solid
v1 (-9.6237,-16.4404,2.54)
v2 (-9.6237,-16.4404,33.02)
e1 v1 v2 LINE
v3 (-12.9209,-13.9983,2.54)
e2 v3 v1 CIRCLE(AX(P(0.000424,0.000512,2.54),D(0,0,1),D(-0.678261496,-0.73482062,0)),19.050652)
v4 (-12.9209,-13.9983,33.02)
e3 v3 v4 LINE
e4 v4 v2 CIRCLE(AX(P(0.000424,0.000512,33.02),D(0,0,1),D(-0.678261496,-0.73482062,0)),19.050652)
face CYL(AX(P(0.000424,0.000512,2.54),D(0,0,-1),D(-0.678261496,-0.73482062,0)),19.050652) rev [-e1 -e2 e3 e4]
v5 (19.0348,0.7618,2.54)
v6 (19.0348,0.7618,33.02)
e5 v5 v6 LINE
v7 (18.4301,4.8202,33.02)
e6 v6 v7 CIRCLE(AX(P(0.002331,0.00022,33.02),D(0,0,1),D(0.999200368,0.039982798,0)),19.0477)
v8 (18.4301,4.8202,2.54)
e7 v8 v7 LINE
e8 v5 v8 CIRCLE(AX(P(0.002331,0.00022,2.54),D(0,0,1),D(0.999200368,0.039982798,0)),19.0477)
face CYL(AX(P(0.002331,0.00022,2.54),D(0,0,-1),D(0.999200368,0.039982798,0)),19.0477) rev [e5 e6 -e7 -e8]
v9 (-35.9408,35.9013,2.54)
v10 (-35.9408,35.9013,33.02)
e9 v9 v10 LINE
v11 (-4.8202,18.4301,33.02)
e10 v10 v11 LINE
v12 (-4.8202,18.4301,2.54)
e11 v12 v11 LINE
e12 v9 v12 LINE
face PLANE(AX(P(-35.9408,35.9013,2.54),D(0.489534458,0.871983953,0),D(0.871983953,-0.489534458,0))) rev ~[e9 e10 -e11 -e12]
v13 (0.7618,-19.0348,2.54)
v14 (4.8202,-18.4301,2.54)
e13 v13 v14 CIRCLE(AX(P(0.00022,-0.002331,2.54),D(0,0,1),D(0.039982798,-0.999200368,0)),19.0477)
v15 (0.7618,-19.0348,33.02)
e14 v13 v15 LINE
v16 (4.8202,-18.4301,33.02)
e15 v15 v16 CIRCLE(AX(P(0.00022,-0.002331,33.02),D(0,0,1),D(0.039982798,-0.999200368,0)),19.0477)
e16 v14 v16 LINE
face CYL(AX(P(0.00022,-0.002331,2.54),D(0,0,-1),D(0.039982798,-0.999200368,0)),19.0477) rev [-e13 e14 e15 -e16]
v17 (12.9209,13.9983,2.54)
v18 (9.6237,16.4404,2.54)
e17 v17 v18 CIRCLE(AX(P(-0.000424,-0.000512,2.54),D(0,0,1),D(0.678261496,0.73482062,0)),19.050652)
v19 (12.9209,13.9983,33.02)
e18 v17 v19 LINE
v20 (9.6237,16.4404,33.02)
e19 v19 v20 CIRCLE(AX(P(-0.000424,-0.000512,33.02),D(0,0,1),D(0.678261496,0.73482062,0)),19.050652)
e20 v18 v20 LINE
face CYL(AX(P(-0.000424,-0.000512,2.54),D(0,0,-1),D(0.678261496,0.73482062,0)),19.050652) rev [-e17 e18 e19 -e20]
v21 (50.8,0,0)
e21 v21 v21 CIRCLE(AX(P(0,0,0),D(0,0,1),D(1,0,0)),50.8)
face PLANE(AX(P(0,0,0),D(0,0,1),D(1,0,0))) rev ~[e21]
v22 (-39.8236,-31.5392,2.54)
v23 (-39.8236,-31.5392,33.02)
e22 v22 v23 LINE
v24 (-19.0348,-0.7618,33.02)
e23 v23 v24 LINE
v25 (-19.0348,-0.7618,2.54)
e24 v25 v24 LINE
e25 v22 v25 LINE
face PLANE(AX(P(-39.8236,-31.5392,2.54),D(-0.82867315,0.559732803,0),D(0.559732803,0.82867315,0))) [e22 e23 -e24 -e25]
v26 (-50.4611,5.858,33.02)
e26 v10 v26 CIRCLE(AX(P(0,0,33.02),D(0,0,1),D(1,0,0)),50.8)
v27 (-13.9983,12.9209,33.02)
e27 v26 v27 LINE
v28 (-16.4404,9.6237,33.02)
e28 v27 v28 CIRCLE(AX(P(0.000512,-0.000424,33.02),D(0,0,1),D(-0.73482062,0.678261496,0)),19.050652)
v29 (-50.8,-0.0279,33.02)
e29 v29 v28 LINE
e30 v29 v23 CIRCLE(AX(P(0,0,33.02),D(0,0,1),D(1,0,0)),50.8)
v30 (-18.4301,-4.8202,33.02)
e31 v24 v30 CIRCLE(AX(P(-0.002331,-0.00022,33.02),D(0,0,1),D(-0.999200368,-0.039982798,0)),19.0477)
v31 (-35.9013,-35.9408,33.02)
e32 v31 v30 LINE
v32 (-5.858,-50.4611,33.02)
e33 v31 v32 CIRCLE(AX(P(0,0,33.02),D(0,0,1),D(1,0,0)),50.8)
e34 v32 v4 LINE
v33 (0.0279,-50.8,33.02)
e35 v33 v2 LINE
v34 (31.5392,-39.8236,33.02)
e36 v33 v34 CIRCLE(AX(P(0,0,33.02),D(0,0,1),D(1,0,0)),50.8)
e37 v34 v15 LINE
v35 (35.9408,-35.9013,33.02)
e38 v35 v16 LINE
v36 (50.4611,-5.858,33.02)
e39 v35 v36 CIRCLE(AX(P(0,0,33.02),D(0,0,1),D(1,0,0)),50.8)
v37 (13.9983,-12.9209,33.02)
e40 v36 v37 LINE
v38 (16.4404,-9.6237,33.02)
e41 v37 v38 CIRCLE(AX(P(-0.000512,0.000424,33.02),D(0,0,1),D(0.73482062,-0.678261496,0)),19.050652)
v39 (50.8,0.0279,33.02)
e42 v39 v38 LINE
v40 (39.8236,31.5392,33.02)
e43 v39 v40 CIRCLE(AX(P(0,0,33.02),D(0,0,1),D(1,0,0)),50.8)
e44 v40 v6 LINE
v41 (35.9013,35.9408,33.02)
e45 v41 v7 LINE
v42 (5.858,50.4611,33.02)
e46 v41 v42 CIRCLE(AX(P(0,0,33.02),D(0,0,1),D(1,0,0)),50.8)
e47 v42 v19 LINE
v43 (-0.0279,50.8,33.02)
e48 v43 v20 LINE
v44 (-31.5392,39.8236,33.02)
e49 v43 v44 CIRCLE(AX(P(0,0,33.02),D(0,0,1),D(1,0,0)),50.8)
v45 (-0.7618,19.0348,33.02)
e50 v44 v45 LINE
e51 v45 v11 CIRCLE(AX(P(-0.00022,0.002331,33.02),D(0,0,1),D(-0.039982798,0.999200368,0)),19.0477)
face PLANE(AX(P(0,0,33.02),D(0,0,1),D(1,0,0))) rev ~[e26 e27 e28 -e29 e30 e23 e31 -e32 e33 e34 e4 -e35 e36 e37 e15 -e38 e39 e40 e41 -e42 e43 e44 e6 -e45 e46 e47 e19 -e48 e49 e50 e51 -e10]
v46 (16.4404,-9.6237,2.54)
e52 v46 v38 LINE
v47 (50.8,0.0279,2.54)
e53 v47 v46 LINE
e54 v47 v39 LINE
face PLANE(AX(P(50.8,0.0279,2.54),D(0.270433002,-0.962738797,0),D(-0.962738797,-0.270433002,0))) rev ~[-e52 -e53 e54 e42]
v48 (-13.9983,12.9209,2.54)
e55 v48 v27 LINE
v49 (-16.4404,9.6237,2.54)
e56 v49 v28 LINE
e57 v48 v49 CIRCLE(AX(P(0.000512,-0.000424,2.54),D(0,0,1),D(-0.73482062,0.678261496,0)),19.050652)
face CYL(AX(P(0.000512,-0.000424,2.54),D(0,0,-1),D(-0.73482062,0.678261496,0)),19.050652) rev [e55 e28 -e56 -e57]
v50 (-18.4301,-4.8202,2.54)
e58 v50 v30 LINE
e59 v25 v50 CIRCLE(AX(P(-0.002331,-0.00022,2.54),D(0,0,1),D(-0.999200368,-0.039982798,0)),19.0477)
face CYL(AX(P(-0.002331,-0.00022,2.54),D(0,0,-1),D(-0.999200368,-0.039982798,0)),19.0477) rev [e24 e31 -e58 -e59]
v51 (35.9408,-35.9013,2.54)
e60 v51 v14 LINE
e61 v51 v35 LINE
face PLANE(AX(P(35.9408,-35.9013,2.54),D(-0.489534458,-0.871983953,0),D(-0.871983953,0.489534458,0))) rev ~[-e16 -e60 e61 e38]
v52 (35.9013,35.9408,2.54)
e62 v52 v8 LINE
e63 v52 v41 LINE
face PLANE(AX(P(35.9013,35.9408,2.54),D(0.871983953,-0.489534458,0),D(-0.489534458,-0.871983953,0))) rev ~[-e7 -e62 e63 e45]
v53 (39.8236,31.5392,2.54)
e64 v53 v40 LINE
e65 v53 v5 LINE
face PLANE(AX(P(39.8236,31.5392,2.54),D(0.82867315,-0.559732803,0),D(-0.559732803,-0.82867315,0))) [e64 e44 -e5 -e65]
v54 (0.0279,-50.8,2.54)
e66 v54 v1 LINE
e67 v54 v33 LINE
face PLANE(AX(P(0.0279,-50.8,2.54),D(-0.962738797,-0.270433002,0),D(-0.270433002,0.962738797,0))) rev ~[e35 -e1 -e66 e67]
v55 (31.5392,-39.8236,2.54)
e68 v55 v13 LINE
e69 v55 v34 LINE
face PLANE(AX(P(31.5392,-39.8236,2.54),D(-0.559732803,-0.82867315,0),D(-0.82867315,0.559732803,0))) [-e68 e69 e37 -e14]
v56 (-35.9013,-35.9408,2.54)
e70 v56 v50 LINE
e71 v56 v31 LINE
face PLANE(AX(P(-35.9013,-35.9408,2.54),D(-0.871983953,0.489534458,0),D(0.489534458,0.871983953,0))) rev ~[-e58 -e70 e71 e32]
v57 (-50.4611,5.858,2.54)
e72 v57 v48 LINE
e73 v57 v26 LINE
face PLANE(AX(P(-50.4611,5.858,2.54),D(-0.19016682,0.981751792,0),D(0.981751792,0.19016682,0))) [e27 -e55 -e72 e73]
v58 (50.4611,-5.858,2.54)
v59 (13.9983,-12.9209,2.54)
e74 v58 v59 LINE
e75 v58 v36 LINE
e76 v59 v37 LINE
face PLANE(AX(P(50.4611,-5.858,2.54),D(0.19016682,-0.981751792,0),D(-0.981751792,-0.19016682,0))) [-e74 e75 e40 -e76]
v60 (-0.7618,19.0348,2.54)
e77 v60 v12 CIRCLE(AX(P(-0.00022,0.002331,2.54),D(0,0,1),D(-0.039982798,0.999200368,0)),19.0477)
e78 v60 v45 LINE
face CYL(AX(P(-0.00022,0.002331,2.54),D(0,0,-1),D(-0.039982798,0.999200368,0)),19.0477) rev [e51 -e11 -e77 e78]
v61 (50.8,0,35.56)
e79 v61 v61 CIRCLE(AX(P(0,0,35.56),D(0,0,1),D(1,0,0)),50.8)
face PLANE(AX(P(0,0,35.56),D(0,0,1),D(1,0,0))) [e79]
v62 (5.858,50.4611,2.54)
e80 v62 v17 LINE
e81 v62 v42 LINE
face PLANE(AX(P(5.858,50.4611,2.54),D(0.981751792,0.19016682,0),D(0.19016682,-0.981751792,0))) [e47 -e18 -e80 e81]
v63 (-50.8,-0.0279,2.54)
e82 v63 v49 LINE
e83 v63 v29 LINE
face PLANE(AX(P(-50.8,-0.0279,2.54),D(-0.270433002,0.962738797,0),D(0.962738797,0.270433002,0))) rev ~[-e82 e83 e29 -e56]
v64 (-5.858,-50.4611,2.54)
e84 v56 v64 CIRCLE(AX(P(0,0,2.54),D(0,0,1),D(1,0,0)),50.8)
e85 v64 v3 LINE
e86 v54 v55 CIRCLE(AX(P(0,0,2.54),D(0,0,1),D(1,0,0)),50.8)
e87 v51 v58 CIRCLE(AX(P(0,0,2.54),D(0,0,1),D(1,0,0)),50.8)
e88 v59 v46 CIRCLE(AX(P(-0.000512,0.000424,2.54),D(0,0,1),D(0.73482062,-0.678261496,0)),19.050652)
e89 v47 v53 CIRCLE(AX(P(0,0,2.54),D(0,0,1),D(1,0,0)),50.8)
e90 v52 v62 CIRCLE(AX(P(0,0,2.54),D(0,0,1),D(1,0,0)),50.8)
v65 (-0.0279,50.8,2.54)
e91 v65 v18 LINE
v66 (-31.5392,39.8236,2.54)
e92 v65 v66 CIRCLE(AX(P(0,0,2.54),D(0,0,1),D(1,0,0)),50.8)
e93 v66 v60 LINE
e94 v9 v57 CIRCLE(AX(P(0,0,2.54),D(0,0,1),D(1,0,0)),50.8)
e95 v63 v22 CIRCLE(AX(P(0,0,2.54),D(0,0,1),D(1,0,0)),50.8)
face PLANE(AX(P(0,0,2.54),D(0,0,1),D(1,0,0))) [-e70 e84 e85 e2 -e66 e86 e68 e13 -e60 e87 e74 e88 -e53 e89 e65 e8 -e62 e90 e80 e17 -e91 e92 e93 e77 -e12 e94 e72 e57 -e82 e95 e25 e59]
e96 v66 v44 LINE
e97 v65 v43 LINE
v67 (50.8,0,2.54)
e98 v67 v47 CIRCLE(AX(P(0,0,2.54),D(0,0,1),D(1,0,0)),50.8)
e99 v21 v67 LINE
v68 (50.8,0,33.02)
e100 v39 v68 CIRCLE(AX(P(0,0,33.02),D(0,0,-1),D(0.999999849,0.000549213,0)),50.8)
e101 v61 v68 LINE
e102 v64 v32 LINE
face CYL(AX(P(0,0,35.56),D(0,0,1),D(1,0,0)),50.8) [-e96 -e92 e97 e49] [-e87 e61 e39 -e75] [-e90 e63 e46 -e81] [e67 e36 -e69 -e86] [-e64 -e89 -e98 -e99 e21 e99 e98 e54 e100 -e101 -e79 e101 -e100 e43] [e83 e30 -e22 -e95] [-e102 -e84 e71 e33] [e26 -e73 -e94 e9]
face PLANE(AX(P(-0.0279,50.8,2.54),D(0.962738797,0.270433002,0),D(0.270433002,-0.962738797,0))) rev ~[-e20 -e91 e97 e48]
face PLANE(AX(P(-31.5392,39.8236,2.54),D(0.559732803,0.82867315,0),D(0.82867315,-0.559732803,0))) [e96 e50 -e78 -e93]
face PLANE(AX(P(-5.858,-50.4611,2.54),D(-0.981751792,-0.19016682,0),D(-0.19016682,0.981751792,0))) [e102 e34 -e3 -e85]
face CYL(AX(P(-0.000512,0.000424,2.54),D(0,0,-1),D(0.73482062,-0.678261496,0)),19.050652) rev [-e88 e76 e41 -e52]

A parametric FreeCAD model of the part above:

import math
import FreeCAD as App
import Part
import Sketcher

V = App.Vector
Q = App.Units.Quantity

doc = App.newDocument("Part")
body = doc.addObject("PartDesign::Body", "Body")

sketch1 = doc.addObject("Sketcher::SketchObject", "Sketch")
body.addObject(sketch1)
sketch1.AttachmentSupport = (doc.XY_Plane, [""])
sketch1.MapMode = "FlatFace"
sketch1.addGeometry(Part.Circle(V(0, 0, 0), V(0, 0, 1), 51), False)
sketch1.addConstraint(Sketcher.Constraint("Coincident", 0, 3, -1, 1))
sketch1.addConstraint(Sketcher.Constraint("Diameter", 0, Q("4 in")))
pad1 = doc.addObject("PartDesign::Pad", "Pad")
body.addObject(pad1)
pad1.Profile = sketch1
pad1.Length = Q("0.1 in")

sketch2 = doc.addObject("Sketcher::SketchObject", "Sketch001")
body.addObject(sketch2)
sketch2.AttachmentSupport = (doc.XY_Plane, [""])
sketch2.MapMode = "FlatFace"
sketch2.AttachmentOffset = App.Placement(V(0, 0, 0.1 * 25.4), App.Rotation())
sketch2.addGeometry(Part.ArcOfCircle(Part.Circle(V(0, 0, 0), V(0, 0, 1), 50.8), math.radians(-6.621793), math.radians(0.031468)), False)
sketch2.addGeometry(Part.LineSegment(V(50.8, 0.0279, 0), V(16.4404, -9.6237, 0)), False)
sketch2.addGeometry(Part.ArcOfCircle(Part.Circle(V(0, 0, 0), V(0, 0, 1), 19.050038), math.radians(-42.708047), math.radians(-30.343382)), False)
sketch2.addGeometry(Part.LineSegment(V(13.9983, -12.9209, 0), V(50.4611, -5.858, 0)), False)
sketch2.addGeometry(Part.LineSegment(V(19.0348, 0.7618, 0), V(39.8236, 31.5392, 0)), False)
sketch2.addGeometry(Part.ArcOfCircle(Part.Circle(V(0, 0, 0), V(0, 0, 1), 50.8), math.radians(38.378259), math.radians(45.031502)), False)
sketch2.addGeometry(Part.LineSegment(V(35.9013, 35.9408, 0), V(18.4301, 4.8202, 0)), False)
sketch2.addGeometry(Part.ArcOfCircle(Part.Circle(V(0.002331, 0.00022, 0), V(0, 0, 1), 19.0477), math.radians(2.291456), math.radians(14.657944)), False)
sketch2.addGeometry(Part.ArcOfCircle(Part.Circle(V(0, 0, 0), V(0, 0, 1), 50.8), math.radians(-51.621741), math.radians(-44.968498)), False)
sketch2.addGeometry(Part.LineSegment(V(35.9408, -35.9013, 0), V(4.8202, -18.4301, 0)), False)
sketch2.addGeometry(Part.ArcOfCircle(Part.Circle(V(0.00022, -0.002331, 0), V(0, 0, 1), 19.0477), math.radians(-87.708544), math.radians(-75.342056)), False)
sketch2.addGeometry(Part.LineSegment(V(0.7618, -19.0348, 0), V(31.5392, -39.8236, 0)), False)
sketch2.addGeometry(Part.LineSegment(V(12.9209, 13.9983, 0), V(5.858, 50.4611, 0)), False)
sketch2.addGeometry(Part.ArcOfCircle(Part.Circle(V(0, 0, 0), V(0, 0, 1), 50.8), math.radians(83.378207), math.radians(90.031468)), False)
sketch2.addGeometry(Part.LineSegment(V(-0.0279, 50.8, 0), V(9.6237, 16.4404, 0)), False)
sketch2.addGeometry(Part.ArcOfCircle(Part.Circle(V(0, 0, 0), V(0, 0, 1), 19.050038), math.radians(47.291953), math.radians(59.656618)), False)
sketch2.addGeometry(Part.ArcOfCircle(Part.Circle(V(0, 0, 0), V(0, 0, 1), 50.8), math.radians(-96.621793), math.radians(-89.968532)), False)
sketch2.addGeometry(Part.LineSegment(V(0.0279, -50.8, 0), V(-9.6237, -16.4404, 0)), False)
sketch2.addGeometry(Part.ArcOfCircle(Part.Circle(V(0, 0, 0), V(0, 0, 1), 19.050038), math.radians(-132.708047), math.radians(-120.343382)), False)
sketch2.addGeometry(Part.LineSegment(V(-12.9209, -13.9983, 0), V(-5.858, -50.4611, 0)), False)
sketch2.addGeometry(Part.LineSegment(V(-0.7618, 19.0348, 0), V(-31.5392, 39.8236, 0)), False)
sketch2.addGeometry(Part.ArcOfCircle(Part.Circle(V(0, 0, 0), V(0, 0, 1), 50.8), math.radians(128.378259), math.radians(135.031502)), False)
sketch2.addGeometry(Part.LineSegment(V(-35.9408, 35.9013, 0), V(-4.8202, 18.4301, 0)), False)
sketch2.addGeometry(Part.ArcOfCircle(Part.Circle(V(-0.00022, 0.002331, 0), V(0, 0, 1), 19.0477), math.radians(92.291456), math.radians(104.657944)), False)
sketch2.addGeometry(Part.ArcOfCircle(Part.Circle(V(0, 0, 0), V(0, 0, 1), 50.8), math.radians(-141.621741), math.radians(-134.968498)), False)
sketch2.addGeometry(Part.LineSegment(V(-35.9013, -35.9408, 0), V(-18.4301, -4.8202, 0)), False)
sketch2.addGeometry(Part.ArcOfCircle(Part.Circle(V(-0.002331, -0.00022, 0), V(0, 0, 1), 19.0477), math.radians(-177.708544), math.radians(-165.342056)), False)
sketch2.addGeometry(Part.LineSegment(V(-19.0348, -0.7618, 0), V(-39.8236, -31.5392, 0)), False)
sketch2.addGeometry(Part.LineSegment(V(-13.9983, 12.9209, 0), V(-50.4611, 5.858, 0)), False)
sketch2.addGeometry(Part.ArcOfCircle(Part.Circle(V(0, 0, 0), V(0, 0, 1), 50.8), math.radians(173.378207), math.radians(180.031468)), False)
sketch2.addGeometry(Part.LineSegment(V(-50.8, -0.0279, 0), V(-16.4404, 9.6237, 0)), False)
sketch2.addGeometry(Part.ArcOfCircle(Part.Circle(V(0, 0, 0), V(0, 0, 1), 19.050038), math.radians(137.291953), math.radians(149.656618)), False)
sketch2.addConstraint(Sketcher.Constraint("Coincident", 0, 2, 1, 1))
sketch2.addConstraint(Sketcher.Constraint("Coincident", 1, 2, 2, 2))
sketch2.addConstraint(Sketcher.Constraint("Coincident", 2, 1, 3, 1))
sketch2.addConstraint(Sketcher.Constraint("Coincident", 3, 2, 0, 1))
sketch2.addConstraint(Sketcher.Constraint("Coincident", 4, 2, 5, 1))
sketch2.addConstraint(Sketcher.Constraint("Coincident", 5, 2, 6, 1))
sketch2.addConstraint(Sketcher.Constraint("Coincident", 6, 2, 7, 2))
sketch2.addConstraint(Sketcher.Constraint("Coincident", 7, 1, 4, 1))
sketch2.addConstraint(Sketcher.Constraint("Coincident", 8, 2, 9, 1))
sketch2.addConstraint(Sketcher.Constraint("Coincident", 9, 2, 10, 2))
sketch2.addConstraint(Sketcher.Constraint("Coincident", 10, 1, 11, 1))
sketch2.addConstraint(Sketcher.Constraint("Coincident", 11, 2, 8, 1))
sketch2.addConstraint(Sketcher.Constraint("Coincident", 12, 2, 13, 1))
sketch2.addConstraint(Sketcher.Constraint("Coincident", 13, 2, 14, 1))
sketch2.addConstraint(Sketcher.Constraint("Coincident", 14, 2, 15, 2))
sketch2.addConstraint(Sketcher.Constraint("Coincident", 15, 1, 12, 1))
sketch2.addConstraint(Sketcher.Constraint("Coincident", 16, 2, 17, 1))
sketch2.addConstraint(Sketcher.Constraint("Coincident", 17, 2, 18, 2))
sketch2.addConstraint(Sketcher.Constraint("Coincident", 18, 1, 19, 1))
sketch2.addConstraint(Sketcher.Constraint("Coincident", 19, 2, 16, 1))
sketch2.addConstraint(Sketcher.Constraint("Coincident", 20, 2, 21, 1))
sketch2.addConstraint(Sketcher.Constraint("Coincident", 21, 2, 22, 1))
sketch2.addConstraint(Sketcher.Constraint("Coincident", 22, 2, 23, 2))
sketch2.addConstraint(Sketcher.Constraint("Coincident", 23, 1, 20, 1))
sketch2.addConstraint(Sketcher.Constraint("Coincident", 24, 2, 25, 1))
sketch2.addConstraint(Sketcher.Constraint("Coincident", 25, 2, 26, 2))
sketch2.addConstraint(Sketcher.Constraint("Coincident", 26, 1, 27, 1))
sketch2.addConstraint(Sketcher.Constraint("Coincident", 27, 2, 24, 1))
sketch2.addConstraint(Sketcher.Constraint("Coincident", 28, 2, 29, 1))
sketch2.addConstraint(Sketcher.Constraint("Coincident", 29, 2, 30, 1))
sketch2.addConstraint(Sketcher.Constraint("Coincident", 30, 2, 31, 2))
sketch2.addConstraint(Sketcher.Constraint("Coincident", 31, 1, 28, 1))
sketch2.addConstraint(Sketcher.Constraint("Coincident", 0, 3, -1, 1))
sketch2.addConstraint(Sketcher.Constraint("Coincident", 2, 3, -1, 1))
sketch2.addConstraint(Sketcher.Constraint("Coincident", 5, 3, -1, 1))
sketch2.addConstraint(Sketcher.Constraint("Coincident", 8, 3, -1, 1))
sketch2.addConstraint(Sketcher.Constraint("Coincident", 13, 3, -1, 1))
sketch2.addConstraint(Sketcher.Constraint("Coincident", 15, 3, -1, 1))
sketch2.addConstraint(Sketcher.Constraint("Coincident", 16, 3, -1, 1))
sketch2.addConstraint(Sketcher.Constraint("Coincident", 18, 3, -1, 1))
sketch2.addConstraint(Sketcher.Constraint("Coincident", 21, 3, -1, 1))
sketch2.addConstraint(Sketcher.Constraint("Coincident", 24, 3, -1, 1))
sketch2.addConstraint(Sketcher.Constraint("Coincident", 29, 3, -1, 1))
sketch2.addConstraint(Sketcher.Constraint("Coincident", 31, 3, -1, 1))
sketch2.addConstraint(Sketcher.Constraint("Equal", 0, 5))
sketch2.addConstraint(Sketcher.Constraint("Equal", 5, 8))
sketch2.addConstraint(Sketcher.Constraint("Equal", 7, 10))
sketch2.addConstraint(Sketcher.Constraint("Equal", 8, 13))
sketch2.addConstraint(Sketcher.Constraint("Equal", 2, 15))
sketch2.addConstraint(Sketcher.Constraint("Equal", 13, 16))
sketch2.addConstraint(Sketcher.Constraint("Equal", 15, 18))
sketch2.addConstraint(Sketcher.Constraint("Equal", 16, 21))
sketch2.addConstraint(Sketcher.Constraint("Equal", 10, 23))
sketch2.addConstraint(Sketcher.Constraint("Equal", 21, 24))
sketch2.addConstraint(Sketcher.Constraint("Equal", 23, 26))
sketch2.addConstraint(Sketcher.Constraint("Equal", 24, 29))
sketch2.addConstraint(Sketcher.Constraint("Equal", 18, 31))
sketch2.addConstraint(Sketcher.Constraint("Symmetric", 10, 3, 23, 3, -1, 1))
sketch2.addConstraint(Sketcher.Constraint("Symmetric", 7, 3, 26, 3, -1, 1))
sketch2.addConstraint(Sketcher.Constraint("Perpendicular", 6, 9))
sketch2.addConstraint(Sketcher.Constraint("Perpendicular", 4, 11))
sketch2.addConstraint(Sketcher.Constraint("Perpendicular", 3, 12))
sketch2.addConstraint(Sketcher.Constraint("Perpendicular", 1, 14))
sketch2.addConstraint(Sketcher.Constraint("Parallel", 14, 17))
sketch2.addConstraint(Sketcher.Constraint("Parallel", 12, 19))
sketch2.addConstraint(Sketcher.Constraint("Parallel", 11, 20))
sketch2.addConstraint(Sketcher.Constraint("Parallel", 9, 22))
sketch2.addConstraint(Sketcher.Constraint("Perpendicular", 22, 25))
sketch2.addConstraint(Sketcher.Constraint("Perpendicular", 20, 27))
sketch2.addConstraint(Sketcher.Constraint("Perpendicular", 19, 28))
sketch2.addConstraint(Sketcher.Constraint("Perpendicular", 17, 30))
sketch2.addConstraint(Sketcher.Constraint("Equal", 3, 4))
sketch2.addConstraint(Sketcher.Constraint("Equal", 1, 6))
sketch2.addConstraint(Sketcher.Constraint("Equal", 6, 9))
sketch2.addConstraint(Sketcher.Constraint("Equal", 4, 11))
sketch2.addConstraint(Sketcher.Constraint("Equal", 11, 12))
sketch2.addConstraint(Sketcher.Constraint("Equal", 9, 14))
sketch2.addConstraint(Sketcher.Constraint("Equal", 14, 17))
sketch2.addConstraint(Sketcher.Constraint("Equal", 12, 19))
sketch2.addConstraint(Sketcher.Constraint("Equal", 19, 20))
sketch2.addConstraint(Sketcher.Constraint("Equal", 17, 22))
sketch2.addConstraint(Sketcher.Constraint("Equal", 22, 25))
sketch2.addConstraint(Sketcher.Constraint("Equal", 20, 27))
sketch2.addConstraint(Sketcher.Constraint("Equal", 27, 28))
sketch2.addConstraint(Sketcher.Constraint("Equal", 25, 30))
sketch2.addConstraint(Sketcher.Constraint("Radius", 0, Q("2 in")))
sketch2.addConstraint(Sketcher.Constraint("Radius", 2, Q("0.75 in")))
sketch2.addConstraint(Sketcher.Constraint("DistanceY", -1, 1, 7, 3, Q("0 in")))
sketch2.addConstraint(Sketcher.Constraint("DistanceX", -1, 1, 10, 3, Q("0 in")))
sketch2.addConstraint(Sketcher.Constraint("Radius", 7, Q("0.7499 in")))
sketch2.addConstraint(Sketcher.Constraint("DistanceY", -1, 1, 7, 1, Q("0.03 in")))
sketch2.addConstraint(Sketcher.Constraint("DistanceX", -1, 1, 10, 1, Q("0.03 in")))
sketch2.addConstraint(Sketcher.Constraint("Angle", 1, Q("-164.31 deg")))
sketch2.addConstraint(Sketcher.Constraint("Angle", 6, Q("-119.31 deg")))
sketch2.addConstraint(Sketcher.Constraint("DistanceY", -1, 1, 5, 2, Q("1.415 in")))
sketch2.addConstraint(Sketcher.Constraint("Distance", 1, Q("1.4051 in")))
sketch2.addConstraint(Sketcher.Constraint("DistanceY", 2, 1, -1, 1, Q("0.5087 in")))
sketch2.addConstraint(Sketcher.Constraint("DistanceY", -1, 1, 4, 2, Q("1.2417 in")))
pad2 = doc.addObject("PartDesign::Pad", "Pad001")
body.addObject(pad2)
pad2.Profile = sketch2
pad2.Length = Q("1.2 in")

sketch3 = doc.addObject("Sketcher::SketchObject", "Sketch002")
body.addObject(sketch3)
sketch3.AttachmentSupport = (doc.XY_Plane, [""])
sketch3.MapMode = "FlatFace"
sketch3.AttachmentOffset = App.Placement(V(0, 0, 1.4 * 25.4), App.Rotation())
sketch3.addGeometry(Part.Circle(V(0, 0, 0), V(0, 0, 1), 51), False)
sketch3.addConstraint(Sketcher.Constraint("Coincident", 0, 3, -1, 1))
sketch3.addConstraint(Sketcher.Constraint("Diameter", 0, Q("4 in")))
pad3 = doc.addObject("PartDesign::Pad", "Pad002")
body.addObject(pad3)
pad3.Profile = sketch3
pad3.Length = Q("0.1 in")
pad3.Reversed = True

doc.recompute()
